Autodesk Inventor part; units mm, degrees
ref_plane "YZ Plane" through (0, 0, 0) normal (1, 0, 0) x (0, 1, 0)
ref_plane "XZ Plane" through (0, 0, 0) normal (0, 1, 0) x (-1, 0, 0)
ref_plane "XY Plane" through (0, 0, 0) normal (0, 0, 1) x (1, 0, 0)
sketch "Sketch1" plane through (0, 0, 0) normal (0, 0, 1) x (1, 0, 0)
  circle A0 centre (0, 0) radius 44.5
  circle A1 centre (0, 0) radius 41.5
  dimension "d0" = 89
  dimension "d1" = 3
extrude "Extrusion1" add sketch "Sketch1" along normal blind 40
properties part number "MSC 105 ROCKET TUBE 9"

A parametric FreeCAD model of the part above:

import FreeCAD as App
import Part
import Sketcher

doc = App.newDocument("Part")
body = doc.addObject("PartDesign::Body", "Body")

# Sketch on XY plane
sketch1 = body.newObject("Sketcher::SketchObject", "Sketch")
sketch1.AttachmentSupport = (doc.getObject("XY_Plane"), [""])
sketch1.MapMode = "FlatFace"
sketch1.addGeometry([
    Part.Circle(App.Vector(0, 0, 0), App.Vector(0, 0, 1), 44),
    Part.Circle(App.Vector(0, 0, 0), App.Vector(0, 0, 1), 42),
], False)
sketch1.addConstraint([
    Sketcher.Constraint("Coincident", 0, 3, -1, 1),
    Sketcher.Constraint("Coincident", 1, 3, -1, 1),
    Sketcher.Constraint("Diameter", 0, 89.0),
    Sketcher.Constraint("Diameter", 1, 83.0),
])
pad1 = body.newObject("PartDesign::Pad", "Pad")
pad1.Profile = sketch1
pad1.Length = 40

doc.recompute()
